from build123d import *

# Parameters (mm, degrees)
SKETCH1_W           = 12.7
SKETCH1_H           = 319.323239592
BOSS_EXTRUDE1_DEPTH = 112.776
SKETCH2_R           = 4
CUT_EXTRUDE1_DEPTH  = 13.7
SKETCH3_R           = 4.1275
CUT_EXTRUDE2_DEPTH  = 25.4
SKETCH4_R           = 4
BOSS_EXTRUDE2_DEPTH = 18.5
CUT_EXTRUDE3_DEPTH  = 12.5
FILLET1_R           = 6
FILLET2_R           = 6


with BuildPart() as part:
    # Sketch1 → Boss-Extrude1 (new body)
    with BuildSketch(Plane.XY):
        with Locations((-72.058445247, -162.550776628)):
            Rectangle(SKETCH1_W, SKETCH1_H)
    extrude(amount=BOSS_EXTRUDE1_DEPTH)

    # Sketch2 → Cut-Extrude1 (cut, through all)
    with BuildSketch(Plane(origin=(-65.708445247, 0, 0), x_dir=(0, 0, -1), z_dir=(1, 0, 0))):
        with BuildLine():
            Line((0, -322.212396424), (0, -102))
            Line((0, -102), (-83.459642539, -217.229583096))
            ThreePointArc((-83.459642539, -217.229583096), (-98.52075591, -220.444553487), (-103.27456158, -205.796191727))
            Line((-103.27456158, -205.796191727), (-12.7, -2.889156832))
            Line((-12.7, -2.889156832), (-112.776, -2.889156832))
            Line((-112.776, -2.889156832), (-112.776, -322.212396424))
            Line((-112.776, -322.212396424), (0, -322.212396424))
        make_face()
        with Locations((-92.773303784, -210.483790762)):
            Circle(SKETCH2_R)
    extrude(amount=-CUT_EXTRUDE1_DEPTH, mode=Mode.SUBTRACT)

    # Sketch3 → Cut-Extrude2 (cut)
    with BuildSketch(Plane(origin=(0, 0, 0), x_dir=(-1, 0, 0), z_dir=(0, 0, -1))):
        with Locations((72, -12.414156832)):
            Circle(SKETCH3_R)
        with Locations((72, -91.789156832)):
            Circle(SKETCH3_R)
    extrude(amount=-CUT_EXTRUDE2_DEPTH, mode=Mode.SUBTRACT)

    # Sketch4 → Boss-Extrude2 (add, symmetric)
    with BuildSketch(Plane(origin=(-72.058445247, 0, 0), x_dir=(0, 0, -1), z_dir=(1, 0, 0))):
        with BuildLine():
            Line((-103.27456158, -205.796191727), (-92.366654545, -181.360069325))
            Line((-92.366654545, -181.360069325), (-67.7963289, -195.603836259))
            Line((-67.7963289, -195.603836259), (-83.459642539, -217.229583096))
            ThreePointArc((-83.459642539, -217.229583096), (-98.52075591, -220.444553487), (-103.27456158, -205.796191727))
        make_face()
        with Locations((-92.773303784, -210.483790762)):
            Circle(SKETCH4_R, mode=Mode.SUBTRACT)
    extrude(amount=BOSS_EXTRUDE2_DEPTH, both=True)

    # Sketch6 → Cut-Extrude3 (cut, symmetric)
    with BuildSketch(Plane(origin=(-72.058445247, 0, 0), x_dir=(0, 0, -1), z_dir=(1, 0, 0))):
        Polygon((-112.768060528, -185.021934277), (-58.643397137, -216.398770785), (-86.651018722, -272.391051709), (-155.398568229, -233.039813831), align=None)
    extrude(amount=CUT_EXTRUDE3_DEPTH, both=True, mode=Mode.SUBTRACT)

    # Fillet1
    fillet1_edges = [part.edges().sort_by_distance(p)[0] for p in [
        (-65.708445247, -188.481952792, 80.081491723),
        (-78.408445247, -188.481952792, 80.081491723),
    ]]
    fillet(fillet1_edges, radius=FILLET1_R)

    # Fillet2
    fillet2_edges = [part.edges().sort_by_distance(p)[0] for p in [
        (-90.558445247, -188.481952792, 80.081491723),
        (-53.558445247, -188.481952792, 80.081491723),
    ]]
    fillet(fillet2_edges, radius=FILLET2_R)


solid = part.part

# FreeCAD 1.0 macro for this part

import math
import FreeCAD as App
import Part
import Sketcher
from FreeCAD import Vector
Q = App.Units.Quantity


def edges_at(feature, points):
    """Names of the edges that pass closest to the given points."""
    edges = feature.Shape.Edges
    near = lambda p: min(range(len(edges)), key=lambda i: edges[i].distToShape(Part.Vertex(*p))[0])
    return sorted({f"Edge{near(p) + 1}" for p in points})

doc = App.newDocument("Part")
body = doc.addObject("PartDesign::Body", "Body")

sketch1 = doc.addObject("Sketcher::SketchObject", "Sketch")
body.addObject(sketch1)
sketch1.AttachmentSupport = (doc.XY_Plane, [""])
sketch1.MapMode = "FlatFace"
sketch1.addGeometry([
    Part.LineSegment(Vector(-78, -3, 0), Vector(-78, -322, 0)),
    Part.LineSegment(Vector(-78, -322, 0), Vector(-66, -322, 0)),
    Part.LineSegment(Vector(-66, -322, 0), Vector(-66, -3, 0)),
    Part.LineSegment(Vector(-66, -3, 0), Vector(-78, -3, 0)),
], False)
sketch1.addConstraint([
    Sketcher.Constraint("Coincident", 0, 2, 1, 1),
    Sketcher.Constraint("Coincident", 1, 2, 2, 1),
    Sketcher.Constraint("Coincident", 2, 2, 3, 1),
    Sketcher.Constraint("Coincident", 3, 2, 0, 1),
    Sketcher.Constraint("Vertical", 0),
    Sketcher.Constraint("Horizontal", 1),
    Sketcher.Constraint("Vertical", 2),
    Sketcher.Constraint("Horizontal", 3),
    Sketcher.Constraint("DistanceX", 1, 1, 1, 2, Q("12.7 mm")),
    Sketcher.Constraint("DistanceY", 0, 2, 0, 1, Q("319.32324 mm")),
    Sketcher.Constraint("DistanceX", 0, 2, -1, 1, Q("78.408445 mm")),
    Sketcher.Constraint("DistanceY", 0, 2, -1, 1, Q("322.212396 mm")),
])
pad1 = doc.addObject("PartDesign::Pad", "Pad")
body.addObject(pad1)
pad1.Profile = sketch1
pad1.Length = 112.776

sketch2 = doc.addObject("Sketcher::SketchObject", "Sketch001")
body.addObject(sketch2)
sketch2.AttachmentSupport = (doc.YZ_Plane, [""])
sketch2.MapMode = "FlatFace"
sketch2.AttachmentOffset = App.Placement(Vector(0, 0, -65.708445), App.Rotation())
sketch2.addGeometry([
    Part.LineSegment(Vector(-322.2, 0, 0), Vector(-102, 0, 0)),
    Part.LineSegment(Vector(-102, 0, 0), Vector(-217.2, 83.5, 0)),
    Part.ArcOfCircle(Part.Circle(Vector(-210.5, 92.8, 0), Vector(0, 0, 1), 11.5), math.radians(66), math.radians(234)),
    Part.LineSegment(Vector(-205.8, 103.3, 0), Vector(-2.9, 12.7, 0)),
    Part.LineSegment(Vector(-2.9, 12.7, 0), Vector(-2.9, 112.8, 0)),
    Part.LineSegment(Vector(-2.9, 112.8, 0), Vector(-322.2, 112.8, 0)),
    Part.LineSegment(Vector(-322.2, 112.8, 0), Vector(-322.2, 0, 0)),
    Part.Circle(Vector(-210.5, 92.8, 0), Vector(0, 0, 1), 4),
], False)
sketch2.addConstraint([
    Sketcher.Constraint("Coincident", 0, 2, 1, 1),
    Sketcher.Constraint("Tangent", 1, 2, 2, 2),
    Sketcher.Constraint("Tangent", 2, 1, 3, 1),
    Sketcher.Constraint("Coincident", 3, 2, 4, 1),
    Sketcher.Constraint("Coincident", 4, 2, 5, 1),
    Sketcher.Constraint("Coincident", 5, 2, 6, 1),
    Sketcher.Constraint("Coincident", 6, 2, 0, 1),
    Sketcher.Constraint("Horizontal", 0),
    Sketcher.Constraint("Vertical", 4),
    Sketcher.Constraint("Horizontal", 5),
    Sketcher.Constraint("Vertical", 6),
    Sketcher.Constraint("Coincident", 7, 3, 2, 3),
    Sketcher.Constraint("PointOnObject", 0, 2, -1),
    Sketcher.Constraint("Diameter", 7, Q("8 mm")),
    Sketcher.Constraint("Radius", 2, Q("11.5 mm")),
    Sketcher.Constraint("DistanceX", 0, 2, -1, 1, Q("102 mm")),
    Sketcher.Constraint("DistanceY", -1, 1, 3, 2, Q("12.7 mm")),
    Sketcher.Constraint("DistanceY", 4, 1, 4, 2, Q("100.076 mm")),
    Sketcher.Constraint("DistanceX", 5, 2, 5, 1, Q("319.32324 mm")),
    Sketcher.Constraint("DistanceX", 2, 3, 2, 1, Q("4.687599 mm")),
    Sketcher.Constraint("DistanceX", 0, 1, 0, 2, Q("220.212396 mm")),
    Sketcher.Constraint("DistanceX", 2, 3, -1, 1, Q("210.483791 mm")),
])
pocket1 = doc.addObject("PartDesign::Pocket", "Pocket")
body.addObject(pocket1)
pocket1.Profile = sketch2
pocket1.Type = "ThroughAll"

sketch3 = doc.addObject("Sketcher::SketchObject", "Sketch002")
body.addObject(sketch3)
sketch3.AttachmentSupport = (doc.XY_Plane, [""])
sketch3.MapMode = "FlatFace"
sketch3.addGeometry([
    Part.Circle(Vector(-72, -12.4, 0), Vector(0, 0, 1), 4.1),
    Part.Circle(Vector(-72, -91.8, 0), Vector(0, 0, 1), 4.1),
], False)
sketch3.addConstraint([
    Sketcher.Constraint("Equal", 0, 1),
    Sketcher.Constraint("Vertical", 0, 3, 1, 3),
    Sketcher.Constraint("Diameter", 0, Q("8.255 mm")),
    Sketcher.Constraint("DistanceX", 0, 3, -1, 1, Q("72 mm")),
    Sketcher.Constraint("DistanceY", 1, 3, 0, 3, Q("79.375 mm")),
    Sketcher.Constraint("DistanceY", 0, 3, -1, 1, Q("12.414157 mm")),
])
pocket2 = doc.addObject("PartDesign::Pocket", "Pocket001")
body.addObject(pocket2)
pocket2.Profile = sketch3
pocket2.Length = 25.4
pocket2.Reversed = True

sketch4 = doc.addObject("Sketcher::SketchObject", "Sketch003")
body.addObject(sketch4)
sketch4.AttachmentSupport = (doc.YZ_Plane, [""])
sketch4.MapMode = "FlatFace"
sketch4.AttachmentOffset = App.Placement(Vector(0, 0, -72.058445), App.Rotation())
sketch4.addGeometry([
    Part.LineSegment(Vector(-181.4, 92.4, 0), Vector(-205.8, 103.3, 0)),
    Part.ArcOfCircle(Part.Circle(Vector(-210.5, 92.8, 0), Vector(0, 0, 1), 11.5), math.radians(66), math.radians(234)),
    Part.LineSegment(Vector(-217.2, 83.5, 0), Vector(-195.6, 67.8, 0)),
    Part.LineSegment(Vector(-195.6, 67.8, 0), Vector(-181.4, 92.4, 0)),
    Part.Circle(Vector(-210.5, 92.8, 0), Vector(0, 0, 1), 4),
], False)
sketch4.addConstraint([
    Sketcher.Constraint("Tangent", 0, 2, 1, 1),
    Sketcher.Constraint("Tangent", 1, 2, 2, 1),
    Sketcher.Constraint("Coincident", 2, 2, 3, 1),
    Sketcher.Constraint("Coincident", 3, 2, 0, 1),
    Sketcher.Constraint("Coincident", 4, 3, 1, 3),
    Sketcher.Constraint("Diameter", 4, Q("8 mm")),
    Sketcher.Constraint("Radius", 1, Q("11.5 mm")),
    Sketcher.Constraint("DistanceX", 1, 3, 0, 2, Q("4.687599 mm")),
    Sketcher.Constraint("Distance", 2, Q("26.702291 mm")),
    Sketcher.Constraint("DistanceX", 1, 3, -1, 1, Q("210.483791 mm")),
    Sketcher.Constraint("DistanceY", -1, 1, 0, 2, Q("103.274562 mm")),
    Sketcher.Constraint("DistanceY", -1, 1, 2, 2, Q("67.796329 mm")),
    Sketcher.Constraint("DistanceX", 3, 2, -1, 1, Q("181.360069 mm")),
])
pad2 = doc.addObject("PartDesign::Pad", "Pad001")
body.addObject(pad2)
pad2.Profile = sketch4
pad2.Length = 37
pad2.Midplane = True

sketch5 = doc.addObject("Sketcher::SketchObject", "Sketch004")
body.addObject(sketch5)
sketch5.AttachmentSupport = (doc.YZ_Plane, [""])
sketch5.MapMode = "FlatFace"
sketch5.AttachmentOffset = App.Placement(Vector(0, 0, -72.058445), App.Rotation())
sketch5.addGeometry([
    Part.LineSegment(Vector(-216, 59, 0), Vector(-185, 113, 0)),
    Part.LineSegment(Vector(-185, 113, 0), Vector(-233, 155, 0)),
    Part.LineSegment(Vector(-233, 155, 0), Vector(-272, 87, 0)),
    Part.LineSegment(Vector(-272, 87, 0), Vector(-216, 59, 0)),
], False)
sketch5.addConstraint([
    Sketcher.Constraint("Coincident", 0, 2, 1, 1),
    Sketcher.Constraint("Coincident", 1, 2, 2, 1),
    Sketcher.Constraint("Coincident", 2, 2, 3, 1),
    Sketcher.Constraint("Coincident", 3, 2, 0, 1),
    Sketcher.Constraint("Distance", 0, Q("62.56185 mm")),
    Sketcher.Constraint("Distance", 1, Q("64.21119 mm")),
    Sketcher.Constraint("Distance", 2, Q("79.213291 mm")),
    Sketcher.Constraint("Distance", 3, Q("62.606409 mm")),
    Sketcher.Constraint("DistanceY", -1, 1, 0, 2, Q("112.768061 mm")),
    Sketcher.Constraint("DistanceY", -1, 1, 1, 2, Q("155.398568 mm")),
    Sketcher.Constraint("DistanceX", 2, 2, -1, 1, Q("272.391052 mm")),
    Sketcher.Constraint("DistanceY", -1, 1, 2, 2, Q("86.651019 mm")),
])
pocket3 = doc.addObject("PartDesign::Pocket", "Pocket002")
body.addObject(pocket3)
pocket3.Profile = sketch5
pocket3.Length = 25
pocket3.Midplane = True
doc.recompute()

fillet = doc.addObject("PartDesign::Fillet", "Fillet")
body.addObject(fillet)
fillet.Base = (pocket3, edges_at(pocket3, [(-65.708, -188.482, 80.081), (-78.408, -188.482, 80.081)]))
fillet.Radius = 6
doc.recompute()

fillet2 = doc.addObject("PartDesign::Fillet", "Fillet001")
body.addObject(fillet2)
fillet2.Base = (fillet, edges_at(fillet, [(-90.558, -188.482, 80.081), (-53.558, -188.482, 80.081)]))
fillet2.Radius = 6

doc.recompute()
